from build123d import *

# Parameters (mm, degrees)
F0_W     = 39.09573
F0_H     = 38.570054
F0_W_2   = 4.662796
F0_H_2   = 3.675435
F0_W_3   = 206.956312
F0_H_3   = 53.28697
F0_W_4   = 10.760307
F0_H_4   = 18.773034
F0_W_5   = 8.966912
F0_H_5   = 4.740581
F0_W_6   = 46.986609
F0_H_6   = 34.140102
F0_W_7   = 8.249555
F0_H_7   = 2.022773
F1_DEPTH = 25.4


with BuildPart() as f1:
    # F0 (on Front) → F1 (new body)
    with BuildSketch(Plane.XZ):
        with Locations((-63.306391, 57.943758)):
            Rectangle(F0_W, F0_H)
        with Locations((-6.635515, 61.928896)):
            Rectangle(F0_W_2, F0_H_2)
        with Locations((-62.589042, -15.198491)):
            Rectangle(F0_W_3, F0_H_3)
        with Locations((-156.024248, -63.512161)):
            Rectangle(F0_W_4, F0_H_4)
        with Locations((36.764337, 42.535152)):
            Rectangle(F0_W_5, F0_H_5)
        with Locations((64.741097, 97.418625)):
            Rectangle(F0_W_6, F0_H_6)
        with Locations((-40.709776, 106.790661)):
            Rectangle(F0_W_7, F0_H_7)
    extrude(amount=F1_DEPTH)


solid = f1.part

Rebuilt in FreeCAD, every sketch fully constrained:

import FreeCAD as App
import Part
import Sketcher
Q = App.Units.Quantity

doc = App.newDocument("Part")
params = doc.addObject("Spreadsheet::Sheet", "Params")
for row, (alias, value) in enumerate([
    ("pad1_length", "1 in"),
], start=1):
    params.set(f"A{row}", alias)
    params.set(f"B{row}", "=" + value)
    params.setAlias(f"B{row}", alias)

body = doc.addObject("PartDesign::Body", "Body")
body.AllowCompound = True

# Sketch on XZ plane
sketch1 = body.newObject("Sketcher::SketchObject", "Sketch")
sketch1.AttachmentSupport = (doc.getObject("XZ_Plane"), [""])
sketch1.MapMode = "FlatFace"
sketch1.addGeometry([
    Part.LineSegment(App.Vector(-82.9, 77.2, 0), App.Vector(-82.9, 38.7, 0)),  # 0
    Part.LineSegment(App.Vector(-82.9, 38.7, 0), App.Vector(-43.8, 38.7, 0)),  # 1
    Part.LineSegment(App.Vector(-43.8, 38.7, 0), App.Vector(-43.8, 77.2, 0)),  # 2
    Part.LineSegment(App.Vector(-43.8, 77.2, 0), App.Vector(-82.9, 77.2, 0)),  # 3
    Part.LineSegment(App.Vector(-9, 63.8, 0), App.Vector(-9, 60.1, 0)),  # 4
    Part.LineSegment(App.Vector(-9, 60.1, 0), App.Vector(-4.3, 60.1, 0)),  # 5
    Part.LineSegment(App.Vector(-4.3, 60.1, 0), App.Vector(-4.3, 63.8, 0)),  # 6
    Part.LineSegment(App.Vector(-4.3, 63.8, 0), App.Vector(-9, 63.8, 0)),  # 7
    Part.LineSegment(App.Vector(-166.1, 11.4, 0), App.Vector(-166.1, -41.8, 0)),  # 8
    Part.LineSegment(App.Vector(-166.1, -41.8, 0), App.Vector(40.9, -41.8, 0)),  # 9
    Part.LineSegment(App.Vector(40.9, -41.8, 0), App.Vector(40.9, 11.4, 0)),  # 10
    Part.LineSegment(App.Vector(40.9, 11.4, 0), App.Vector(-166.1, 11.4, 0)),  # 11
    Part.LineSegment(App.Vector(-161.4, -54.1, 0), App.Vector(-161.4, -72.9, 0)),  # 12
    Part.LineSegment(App.Vector(-161.4, -72.9, 0), App.Vector(-150.6, -72.9, 0)),  # 13
    Part.LineSegment(App.Vector(-150.6, -72.9, 0), App.Vector(-150.6, -54.1, 0)),  # 14
    Part.LineSegment(App.Vector(-150.6, -54.1, 0), App.Vector(-161.4, -54.1, 0)),  # 15
    Part.LineSegment(App.Vector(32.3, 44.9, 0), App.Vector(32.3, 40.2, 0)),  # 16
    Part.LineSegment(App.Vector(32.3, 40.2, 0), App.Vector(41.2, 40.2, 0)),  # 17
    Part.LineSegment(App.Vector(41.2, 40.2, 0), App.Vector(41.2, 44.9, 0)),  # 18
    Part.LineSegment(App.Vector(41.2, 44.9, 0), App.Vector(32.3, 44.9, 0)),  # 19
    Part.LineSegment(App.Vector(41.2, 114.5, 0), App.Vector(41.2, 80.3, 0)),  # 20
    Part.LineSegment(App.Vector(41.2, 80.3, 0), App.Vector(88.2, 80.3, 0)),  # 21
    Part.LineSegment(App.Vector(88.2, 80.3, 0), App.Vector(88.2, 114.5, 0)),  # 22
    Part.LineSegment(App.Vector(88.2, 114.5, 0), App.Vector(41.2, 114.5, 0)),  # 23
    Part.LineSegment(App.Vector(-44.8, 107.8, 0), App.Vector(-44.8, 105.8, 0)),  # 24
    Part.LineSegment(App.Vector(-44.8, 105.8, 0), App.Vector(-36.6, 105.8, 0)),  # 25
    Part.LineSegment(App.Vector(-36.6, 105.8, 0), App.Vector(-36.6, 107.8, 0)),  # 26
    Part.LineSegment(App.Vector(-36.6, 107.8, 0), App.Vector(-44.8, 107.8, 0)),  # 27
], False)
sketch1.addConstraint([
    Sketcher.Constraint("Coincident", 0, 2, 1, 1),
    Sketcher.Constraint("Coincident", 1, 2, 2, 1),
    Sketcher.Constraint("Coincident", 2, 2, 3, 1),
    Sketcher.Constraint("Coincident", 3, 2, 0, 1),
    Sketcher.Constraint("Coincident", 4, 2, 5, 1),
    Sketcher.Constraint("Coincident", 5, 2, 6, 1),
    Sketcher.Constraint("Coincident", 6, 2, 7, 1),
    Sketcher.Constraint("Coincident", 7, 2, 4, 1),
    Sketcher.Constraint("Coincident", 8, 2, 9, 1),
    Sketcher.Constraint("Coincident", 9, 2, 10, 1),
    Sketcher.Constraint("Coincident", 10, 2, 11, 1),
    Sketcher.Constraint("Coincident", 11, 2, 8, 1),
    Sketcher.Constraint("Coincident", 12, 2, 13, 1),
    Sketcher.Constraint("Coincident", 13, 2, 14, 1),
    Sketcher.Constraint("Coincident", 14, 2, 15, 1),
    Sketcher.Constraint("Coincident", 15, 2, 12, 1),
    Sketcher.Constraint("Coincident", 16, 2, 17, 1),
    Sketcher.Constraint("Coincident", 17, 2, 18, 1),
    Sketcher.Constraint("Coincident", 18, 2, 19, 1),
    Sketcher.Constraint("Coincident", 19, 2, 16, 1),
    Sketcher.Constraint("Coincident", 20, 2, 21, 1),
    Sketcher.Constraint("Coincident", 21, 2, 22, 1),
    Sketcher.Constraint("Coincident", 22, 2, 23, 1),
    Sketcher.Constraint("Coincident", 23, 2, 20, 1),
    Sketcher.Constraint("Coincident", 24, 2, 25, 1),
    Sketcher.Constraint("Coincident", 25, 2, 26, 1),
    Sketcher.Constraint("Coincident", 26, 2, 27, 1),
    Sketcher.Constraint("Coincident", 27, 2, 24, 1),
    Sketcher.Constraint("Vertical", 0),
    Sketcher.Constraint("Horizontal", 1),
    Sketcher.Constraint("Vertical", 2),
    Sketcher.Constraint("Horizontal", 3),
    Sketcher.Constraint("Vertical", 4),
    Sketcher.Constraint("Horizontal", 5),
    Sketcher.Constraint("Vertical", 6),
    Sketcher.Constraint("Horizontal", 7),
    Sketcher.Constraint("Vertical", 8),
    Sketcher.Constraint("Horizontal", 9),
    Sketcher.Constraint("Vertical", 10),
    Sketcher.Constraint("Horizontal", 11),
    Sketcher.Constraint("Vertical", 12),
    Sketcher.Constraint("Horizontal", 13),
    Sketcher.Constraint("Vertical", 14),
    Sketcher.Constraint("Horizontal", 15),
    Sketcher.Constraint("Vertical", 16),
    Sketcher.Constraint("Horizontal", 17),
    Sketcher.Constraint("Vertical", 18),
    Sketcher.Constraint("Horizontal", 19),
    Sketcher.Constraint("Vertical", 20),
    Sketcher.Constraint("Horizontal", 21),
    Sketcher.Constraint("Vertical", 22),
    Sketcher.Constraint("Horizontal", 23),
    Sketcher.Constraint("Vertical", 24),
    Sketcher.Constraint("Horizontal", 25),
    Sketcher.Constraint("Vertical", 26),
    Sketcher.Constraint("Horizontal", 27),
    Sketcher.Constraint("Vertical", 18, 2, 20, 2),
    Sketcher.Constraint("DistanceX", 8, 2, 0, 2, Q("3.2761001 in")),
    Sketcher.Constraint("DistanceX", 1, 1, 1, 2, Q("39.09573 mm")),
    Sketcher.Constraint("DistanceX", 9, 1, 9, 2, Q("206.956312 mm")),
    Sketcher.Constraint("DistanceX", 21, 1, 21, 2, Q("46.986609 mm")),
    Sketcher.Constraint("DistanceY", 8, 2, 8, 1, Q("53.28697 mm")),
    Sketcher.Constraint("DistanceY", 16, 2, 16, 1, Q("4.740581 mm")),
    Sketcher.Constraint("DistanceX", 12, 2, -1, 1, Q("161.404402 mm")),
    Sketcher.Constraint("DistanceX", -1, 1, 21, 2, Q("88.234402 mm")),
    Sketcher.Constraint("DistanceX", 25, 2, -1, 1, Q("36.584998 mm")),
    Sketcher.Constraint("DistanceX", 5, 1, 5, 2, Q("4.662796 mm")),
    Sketcher.Constraint("DistanceX", 13, 1, 13, 2, Q("10.760307 mm")),
    Sketcher.Constraint("DistanceX", 17, 1, 17, 2, Q("8.966912 mm")),
    Sketcher.Constraint("DistanceX", 25, 1, 25, 2, Q("8.249555 mm")),
    Sketcher.Constraint("DistanceY", 0, 2, 0, 1, Q("38.570054 mm")),
    Sketcher.Constraint("DistanceY", 4, 2, 4, 1, Q("3.675435 mm")),
    Sketcher.Constraint("DistanceY", 12, 2, 12, 1, Q("18.773034 mm")),
    Sketcher.Constraint("DistanceY", 20, 2, 20, 1, Q("34.140102 mm")),
    Sketcher.Constraint("DistanceY", 24, 2, 24, 1, Q("2.022773 mm")),
    Sketcher.Constraint("DistanceY", -1, 1, 0, 2, Q("38.658731 mm")),
    Sketcher.Constraint("DistanceY", -1, 1, 4, 2, Q("60.091178 mm")),
    Sketcher.Constraint("DistanceY", 12, 2, -1, 1, Q("72.898678 mm")),
    Sketcher.Constraint("DistanceY", -1, 1, 16, 2, Q("40.164862 mm")),
    Sketcher.Constraint("DistanceX", 2, 2, 5, 2, Q("39.454409 mm")),
    Sketcher.Constraint("DistanceY", 8, 2, 3, 2, Q("119.070761 mm")),
    Sketcher.Constraint("DistanceX", 13, 2, 0, 2, Q("67.789838 mm")),
    Sketcher.Constraint("DistanceY", 18, 2, 20, 2, Q("35.443131 mm")),
    Sketcher.Constraint("DistanceY", 2, 2, 24, 2, Q("28.550489 mm")),
])
pad1 = body.newObject("PartDesign::Pad", "Pad")
pad1.Profile = sketch1
pad1.setExpression("Length", "Params.pad1_length")

doc.recompute()
